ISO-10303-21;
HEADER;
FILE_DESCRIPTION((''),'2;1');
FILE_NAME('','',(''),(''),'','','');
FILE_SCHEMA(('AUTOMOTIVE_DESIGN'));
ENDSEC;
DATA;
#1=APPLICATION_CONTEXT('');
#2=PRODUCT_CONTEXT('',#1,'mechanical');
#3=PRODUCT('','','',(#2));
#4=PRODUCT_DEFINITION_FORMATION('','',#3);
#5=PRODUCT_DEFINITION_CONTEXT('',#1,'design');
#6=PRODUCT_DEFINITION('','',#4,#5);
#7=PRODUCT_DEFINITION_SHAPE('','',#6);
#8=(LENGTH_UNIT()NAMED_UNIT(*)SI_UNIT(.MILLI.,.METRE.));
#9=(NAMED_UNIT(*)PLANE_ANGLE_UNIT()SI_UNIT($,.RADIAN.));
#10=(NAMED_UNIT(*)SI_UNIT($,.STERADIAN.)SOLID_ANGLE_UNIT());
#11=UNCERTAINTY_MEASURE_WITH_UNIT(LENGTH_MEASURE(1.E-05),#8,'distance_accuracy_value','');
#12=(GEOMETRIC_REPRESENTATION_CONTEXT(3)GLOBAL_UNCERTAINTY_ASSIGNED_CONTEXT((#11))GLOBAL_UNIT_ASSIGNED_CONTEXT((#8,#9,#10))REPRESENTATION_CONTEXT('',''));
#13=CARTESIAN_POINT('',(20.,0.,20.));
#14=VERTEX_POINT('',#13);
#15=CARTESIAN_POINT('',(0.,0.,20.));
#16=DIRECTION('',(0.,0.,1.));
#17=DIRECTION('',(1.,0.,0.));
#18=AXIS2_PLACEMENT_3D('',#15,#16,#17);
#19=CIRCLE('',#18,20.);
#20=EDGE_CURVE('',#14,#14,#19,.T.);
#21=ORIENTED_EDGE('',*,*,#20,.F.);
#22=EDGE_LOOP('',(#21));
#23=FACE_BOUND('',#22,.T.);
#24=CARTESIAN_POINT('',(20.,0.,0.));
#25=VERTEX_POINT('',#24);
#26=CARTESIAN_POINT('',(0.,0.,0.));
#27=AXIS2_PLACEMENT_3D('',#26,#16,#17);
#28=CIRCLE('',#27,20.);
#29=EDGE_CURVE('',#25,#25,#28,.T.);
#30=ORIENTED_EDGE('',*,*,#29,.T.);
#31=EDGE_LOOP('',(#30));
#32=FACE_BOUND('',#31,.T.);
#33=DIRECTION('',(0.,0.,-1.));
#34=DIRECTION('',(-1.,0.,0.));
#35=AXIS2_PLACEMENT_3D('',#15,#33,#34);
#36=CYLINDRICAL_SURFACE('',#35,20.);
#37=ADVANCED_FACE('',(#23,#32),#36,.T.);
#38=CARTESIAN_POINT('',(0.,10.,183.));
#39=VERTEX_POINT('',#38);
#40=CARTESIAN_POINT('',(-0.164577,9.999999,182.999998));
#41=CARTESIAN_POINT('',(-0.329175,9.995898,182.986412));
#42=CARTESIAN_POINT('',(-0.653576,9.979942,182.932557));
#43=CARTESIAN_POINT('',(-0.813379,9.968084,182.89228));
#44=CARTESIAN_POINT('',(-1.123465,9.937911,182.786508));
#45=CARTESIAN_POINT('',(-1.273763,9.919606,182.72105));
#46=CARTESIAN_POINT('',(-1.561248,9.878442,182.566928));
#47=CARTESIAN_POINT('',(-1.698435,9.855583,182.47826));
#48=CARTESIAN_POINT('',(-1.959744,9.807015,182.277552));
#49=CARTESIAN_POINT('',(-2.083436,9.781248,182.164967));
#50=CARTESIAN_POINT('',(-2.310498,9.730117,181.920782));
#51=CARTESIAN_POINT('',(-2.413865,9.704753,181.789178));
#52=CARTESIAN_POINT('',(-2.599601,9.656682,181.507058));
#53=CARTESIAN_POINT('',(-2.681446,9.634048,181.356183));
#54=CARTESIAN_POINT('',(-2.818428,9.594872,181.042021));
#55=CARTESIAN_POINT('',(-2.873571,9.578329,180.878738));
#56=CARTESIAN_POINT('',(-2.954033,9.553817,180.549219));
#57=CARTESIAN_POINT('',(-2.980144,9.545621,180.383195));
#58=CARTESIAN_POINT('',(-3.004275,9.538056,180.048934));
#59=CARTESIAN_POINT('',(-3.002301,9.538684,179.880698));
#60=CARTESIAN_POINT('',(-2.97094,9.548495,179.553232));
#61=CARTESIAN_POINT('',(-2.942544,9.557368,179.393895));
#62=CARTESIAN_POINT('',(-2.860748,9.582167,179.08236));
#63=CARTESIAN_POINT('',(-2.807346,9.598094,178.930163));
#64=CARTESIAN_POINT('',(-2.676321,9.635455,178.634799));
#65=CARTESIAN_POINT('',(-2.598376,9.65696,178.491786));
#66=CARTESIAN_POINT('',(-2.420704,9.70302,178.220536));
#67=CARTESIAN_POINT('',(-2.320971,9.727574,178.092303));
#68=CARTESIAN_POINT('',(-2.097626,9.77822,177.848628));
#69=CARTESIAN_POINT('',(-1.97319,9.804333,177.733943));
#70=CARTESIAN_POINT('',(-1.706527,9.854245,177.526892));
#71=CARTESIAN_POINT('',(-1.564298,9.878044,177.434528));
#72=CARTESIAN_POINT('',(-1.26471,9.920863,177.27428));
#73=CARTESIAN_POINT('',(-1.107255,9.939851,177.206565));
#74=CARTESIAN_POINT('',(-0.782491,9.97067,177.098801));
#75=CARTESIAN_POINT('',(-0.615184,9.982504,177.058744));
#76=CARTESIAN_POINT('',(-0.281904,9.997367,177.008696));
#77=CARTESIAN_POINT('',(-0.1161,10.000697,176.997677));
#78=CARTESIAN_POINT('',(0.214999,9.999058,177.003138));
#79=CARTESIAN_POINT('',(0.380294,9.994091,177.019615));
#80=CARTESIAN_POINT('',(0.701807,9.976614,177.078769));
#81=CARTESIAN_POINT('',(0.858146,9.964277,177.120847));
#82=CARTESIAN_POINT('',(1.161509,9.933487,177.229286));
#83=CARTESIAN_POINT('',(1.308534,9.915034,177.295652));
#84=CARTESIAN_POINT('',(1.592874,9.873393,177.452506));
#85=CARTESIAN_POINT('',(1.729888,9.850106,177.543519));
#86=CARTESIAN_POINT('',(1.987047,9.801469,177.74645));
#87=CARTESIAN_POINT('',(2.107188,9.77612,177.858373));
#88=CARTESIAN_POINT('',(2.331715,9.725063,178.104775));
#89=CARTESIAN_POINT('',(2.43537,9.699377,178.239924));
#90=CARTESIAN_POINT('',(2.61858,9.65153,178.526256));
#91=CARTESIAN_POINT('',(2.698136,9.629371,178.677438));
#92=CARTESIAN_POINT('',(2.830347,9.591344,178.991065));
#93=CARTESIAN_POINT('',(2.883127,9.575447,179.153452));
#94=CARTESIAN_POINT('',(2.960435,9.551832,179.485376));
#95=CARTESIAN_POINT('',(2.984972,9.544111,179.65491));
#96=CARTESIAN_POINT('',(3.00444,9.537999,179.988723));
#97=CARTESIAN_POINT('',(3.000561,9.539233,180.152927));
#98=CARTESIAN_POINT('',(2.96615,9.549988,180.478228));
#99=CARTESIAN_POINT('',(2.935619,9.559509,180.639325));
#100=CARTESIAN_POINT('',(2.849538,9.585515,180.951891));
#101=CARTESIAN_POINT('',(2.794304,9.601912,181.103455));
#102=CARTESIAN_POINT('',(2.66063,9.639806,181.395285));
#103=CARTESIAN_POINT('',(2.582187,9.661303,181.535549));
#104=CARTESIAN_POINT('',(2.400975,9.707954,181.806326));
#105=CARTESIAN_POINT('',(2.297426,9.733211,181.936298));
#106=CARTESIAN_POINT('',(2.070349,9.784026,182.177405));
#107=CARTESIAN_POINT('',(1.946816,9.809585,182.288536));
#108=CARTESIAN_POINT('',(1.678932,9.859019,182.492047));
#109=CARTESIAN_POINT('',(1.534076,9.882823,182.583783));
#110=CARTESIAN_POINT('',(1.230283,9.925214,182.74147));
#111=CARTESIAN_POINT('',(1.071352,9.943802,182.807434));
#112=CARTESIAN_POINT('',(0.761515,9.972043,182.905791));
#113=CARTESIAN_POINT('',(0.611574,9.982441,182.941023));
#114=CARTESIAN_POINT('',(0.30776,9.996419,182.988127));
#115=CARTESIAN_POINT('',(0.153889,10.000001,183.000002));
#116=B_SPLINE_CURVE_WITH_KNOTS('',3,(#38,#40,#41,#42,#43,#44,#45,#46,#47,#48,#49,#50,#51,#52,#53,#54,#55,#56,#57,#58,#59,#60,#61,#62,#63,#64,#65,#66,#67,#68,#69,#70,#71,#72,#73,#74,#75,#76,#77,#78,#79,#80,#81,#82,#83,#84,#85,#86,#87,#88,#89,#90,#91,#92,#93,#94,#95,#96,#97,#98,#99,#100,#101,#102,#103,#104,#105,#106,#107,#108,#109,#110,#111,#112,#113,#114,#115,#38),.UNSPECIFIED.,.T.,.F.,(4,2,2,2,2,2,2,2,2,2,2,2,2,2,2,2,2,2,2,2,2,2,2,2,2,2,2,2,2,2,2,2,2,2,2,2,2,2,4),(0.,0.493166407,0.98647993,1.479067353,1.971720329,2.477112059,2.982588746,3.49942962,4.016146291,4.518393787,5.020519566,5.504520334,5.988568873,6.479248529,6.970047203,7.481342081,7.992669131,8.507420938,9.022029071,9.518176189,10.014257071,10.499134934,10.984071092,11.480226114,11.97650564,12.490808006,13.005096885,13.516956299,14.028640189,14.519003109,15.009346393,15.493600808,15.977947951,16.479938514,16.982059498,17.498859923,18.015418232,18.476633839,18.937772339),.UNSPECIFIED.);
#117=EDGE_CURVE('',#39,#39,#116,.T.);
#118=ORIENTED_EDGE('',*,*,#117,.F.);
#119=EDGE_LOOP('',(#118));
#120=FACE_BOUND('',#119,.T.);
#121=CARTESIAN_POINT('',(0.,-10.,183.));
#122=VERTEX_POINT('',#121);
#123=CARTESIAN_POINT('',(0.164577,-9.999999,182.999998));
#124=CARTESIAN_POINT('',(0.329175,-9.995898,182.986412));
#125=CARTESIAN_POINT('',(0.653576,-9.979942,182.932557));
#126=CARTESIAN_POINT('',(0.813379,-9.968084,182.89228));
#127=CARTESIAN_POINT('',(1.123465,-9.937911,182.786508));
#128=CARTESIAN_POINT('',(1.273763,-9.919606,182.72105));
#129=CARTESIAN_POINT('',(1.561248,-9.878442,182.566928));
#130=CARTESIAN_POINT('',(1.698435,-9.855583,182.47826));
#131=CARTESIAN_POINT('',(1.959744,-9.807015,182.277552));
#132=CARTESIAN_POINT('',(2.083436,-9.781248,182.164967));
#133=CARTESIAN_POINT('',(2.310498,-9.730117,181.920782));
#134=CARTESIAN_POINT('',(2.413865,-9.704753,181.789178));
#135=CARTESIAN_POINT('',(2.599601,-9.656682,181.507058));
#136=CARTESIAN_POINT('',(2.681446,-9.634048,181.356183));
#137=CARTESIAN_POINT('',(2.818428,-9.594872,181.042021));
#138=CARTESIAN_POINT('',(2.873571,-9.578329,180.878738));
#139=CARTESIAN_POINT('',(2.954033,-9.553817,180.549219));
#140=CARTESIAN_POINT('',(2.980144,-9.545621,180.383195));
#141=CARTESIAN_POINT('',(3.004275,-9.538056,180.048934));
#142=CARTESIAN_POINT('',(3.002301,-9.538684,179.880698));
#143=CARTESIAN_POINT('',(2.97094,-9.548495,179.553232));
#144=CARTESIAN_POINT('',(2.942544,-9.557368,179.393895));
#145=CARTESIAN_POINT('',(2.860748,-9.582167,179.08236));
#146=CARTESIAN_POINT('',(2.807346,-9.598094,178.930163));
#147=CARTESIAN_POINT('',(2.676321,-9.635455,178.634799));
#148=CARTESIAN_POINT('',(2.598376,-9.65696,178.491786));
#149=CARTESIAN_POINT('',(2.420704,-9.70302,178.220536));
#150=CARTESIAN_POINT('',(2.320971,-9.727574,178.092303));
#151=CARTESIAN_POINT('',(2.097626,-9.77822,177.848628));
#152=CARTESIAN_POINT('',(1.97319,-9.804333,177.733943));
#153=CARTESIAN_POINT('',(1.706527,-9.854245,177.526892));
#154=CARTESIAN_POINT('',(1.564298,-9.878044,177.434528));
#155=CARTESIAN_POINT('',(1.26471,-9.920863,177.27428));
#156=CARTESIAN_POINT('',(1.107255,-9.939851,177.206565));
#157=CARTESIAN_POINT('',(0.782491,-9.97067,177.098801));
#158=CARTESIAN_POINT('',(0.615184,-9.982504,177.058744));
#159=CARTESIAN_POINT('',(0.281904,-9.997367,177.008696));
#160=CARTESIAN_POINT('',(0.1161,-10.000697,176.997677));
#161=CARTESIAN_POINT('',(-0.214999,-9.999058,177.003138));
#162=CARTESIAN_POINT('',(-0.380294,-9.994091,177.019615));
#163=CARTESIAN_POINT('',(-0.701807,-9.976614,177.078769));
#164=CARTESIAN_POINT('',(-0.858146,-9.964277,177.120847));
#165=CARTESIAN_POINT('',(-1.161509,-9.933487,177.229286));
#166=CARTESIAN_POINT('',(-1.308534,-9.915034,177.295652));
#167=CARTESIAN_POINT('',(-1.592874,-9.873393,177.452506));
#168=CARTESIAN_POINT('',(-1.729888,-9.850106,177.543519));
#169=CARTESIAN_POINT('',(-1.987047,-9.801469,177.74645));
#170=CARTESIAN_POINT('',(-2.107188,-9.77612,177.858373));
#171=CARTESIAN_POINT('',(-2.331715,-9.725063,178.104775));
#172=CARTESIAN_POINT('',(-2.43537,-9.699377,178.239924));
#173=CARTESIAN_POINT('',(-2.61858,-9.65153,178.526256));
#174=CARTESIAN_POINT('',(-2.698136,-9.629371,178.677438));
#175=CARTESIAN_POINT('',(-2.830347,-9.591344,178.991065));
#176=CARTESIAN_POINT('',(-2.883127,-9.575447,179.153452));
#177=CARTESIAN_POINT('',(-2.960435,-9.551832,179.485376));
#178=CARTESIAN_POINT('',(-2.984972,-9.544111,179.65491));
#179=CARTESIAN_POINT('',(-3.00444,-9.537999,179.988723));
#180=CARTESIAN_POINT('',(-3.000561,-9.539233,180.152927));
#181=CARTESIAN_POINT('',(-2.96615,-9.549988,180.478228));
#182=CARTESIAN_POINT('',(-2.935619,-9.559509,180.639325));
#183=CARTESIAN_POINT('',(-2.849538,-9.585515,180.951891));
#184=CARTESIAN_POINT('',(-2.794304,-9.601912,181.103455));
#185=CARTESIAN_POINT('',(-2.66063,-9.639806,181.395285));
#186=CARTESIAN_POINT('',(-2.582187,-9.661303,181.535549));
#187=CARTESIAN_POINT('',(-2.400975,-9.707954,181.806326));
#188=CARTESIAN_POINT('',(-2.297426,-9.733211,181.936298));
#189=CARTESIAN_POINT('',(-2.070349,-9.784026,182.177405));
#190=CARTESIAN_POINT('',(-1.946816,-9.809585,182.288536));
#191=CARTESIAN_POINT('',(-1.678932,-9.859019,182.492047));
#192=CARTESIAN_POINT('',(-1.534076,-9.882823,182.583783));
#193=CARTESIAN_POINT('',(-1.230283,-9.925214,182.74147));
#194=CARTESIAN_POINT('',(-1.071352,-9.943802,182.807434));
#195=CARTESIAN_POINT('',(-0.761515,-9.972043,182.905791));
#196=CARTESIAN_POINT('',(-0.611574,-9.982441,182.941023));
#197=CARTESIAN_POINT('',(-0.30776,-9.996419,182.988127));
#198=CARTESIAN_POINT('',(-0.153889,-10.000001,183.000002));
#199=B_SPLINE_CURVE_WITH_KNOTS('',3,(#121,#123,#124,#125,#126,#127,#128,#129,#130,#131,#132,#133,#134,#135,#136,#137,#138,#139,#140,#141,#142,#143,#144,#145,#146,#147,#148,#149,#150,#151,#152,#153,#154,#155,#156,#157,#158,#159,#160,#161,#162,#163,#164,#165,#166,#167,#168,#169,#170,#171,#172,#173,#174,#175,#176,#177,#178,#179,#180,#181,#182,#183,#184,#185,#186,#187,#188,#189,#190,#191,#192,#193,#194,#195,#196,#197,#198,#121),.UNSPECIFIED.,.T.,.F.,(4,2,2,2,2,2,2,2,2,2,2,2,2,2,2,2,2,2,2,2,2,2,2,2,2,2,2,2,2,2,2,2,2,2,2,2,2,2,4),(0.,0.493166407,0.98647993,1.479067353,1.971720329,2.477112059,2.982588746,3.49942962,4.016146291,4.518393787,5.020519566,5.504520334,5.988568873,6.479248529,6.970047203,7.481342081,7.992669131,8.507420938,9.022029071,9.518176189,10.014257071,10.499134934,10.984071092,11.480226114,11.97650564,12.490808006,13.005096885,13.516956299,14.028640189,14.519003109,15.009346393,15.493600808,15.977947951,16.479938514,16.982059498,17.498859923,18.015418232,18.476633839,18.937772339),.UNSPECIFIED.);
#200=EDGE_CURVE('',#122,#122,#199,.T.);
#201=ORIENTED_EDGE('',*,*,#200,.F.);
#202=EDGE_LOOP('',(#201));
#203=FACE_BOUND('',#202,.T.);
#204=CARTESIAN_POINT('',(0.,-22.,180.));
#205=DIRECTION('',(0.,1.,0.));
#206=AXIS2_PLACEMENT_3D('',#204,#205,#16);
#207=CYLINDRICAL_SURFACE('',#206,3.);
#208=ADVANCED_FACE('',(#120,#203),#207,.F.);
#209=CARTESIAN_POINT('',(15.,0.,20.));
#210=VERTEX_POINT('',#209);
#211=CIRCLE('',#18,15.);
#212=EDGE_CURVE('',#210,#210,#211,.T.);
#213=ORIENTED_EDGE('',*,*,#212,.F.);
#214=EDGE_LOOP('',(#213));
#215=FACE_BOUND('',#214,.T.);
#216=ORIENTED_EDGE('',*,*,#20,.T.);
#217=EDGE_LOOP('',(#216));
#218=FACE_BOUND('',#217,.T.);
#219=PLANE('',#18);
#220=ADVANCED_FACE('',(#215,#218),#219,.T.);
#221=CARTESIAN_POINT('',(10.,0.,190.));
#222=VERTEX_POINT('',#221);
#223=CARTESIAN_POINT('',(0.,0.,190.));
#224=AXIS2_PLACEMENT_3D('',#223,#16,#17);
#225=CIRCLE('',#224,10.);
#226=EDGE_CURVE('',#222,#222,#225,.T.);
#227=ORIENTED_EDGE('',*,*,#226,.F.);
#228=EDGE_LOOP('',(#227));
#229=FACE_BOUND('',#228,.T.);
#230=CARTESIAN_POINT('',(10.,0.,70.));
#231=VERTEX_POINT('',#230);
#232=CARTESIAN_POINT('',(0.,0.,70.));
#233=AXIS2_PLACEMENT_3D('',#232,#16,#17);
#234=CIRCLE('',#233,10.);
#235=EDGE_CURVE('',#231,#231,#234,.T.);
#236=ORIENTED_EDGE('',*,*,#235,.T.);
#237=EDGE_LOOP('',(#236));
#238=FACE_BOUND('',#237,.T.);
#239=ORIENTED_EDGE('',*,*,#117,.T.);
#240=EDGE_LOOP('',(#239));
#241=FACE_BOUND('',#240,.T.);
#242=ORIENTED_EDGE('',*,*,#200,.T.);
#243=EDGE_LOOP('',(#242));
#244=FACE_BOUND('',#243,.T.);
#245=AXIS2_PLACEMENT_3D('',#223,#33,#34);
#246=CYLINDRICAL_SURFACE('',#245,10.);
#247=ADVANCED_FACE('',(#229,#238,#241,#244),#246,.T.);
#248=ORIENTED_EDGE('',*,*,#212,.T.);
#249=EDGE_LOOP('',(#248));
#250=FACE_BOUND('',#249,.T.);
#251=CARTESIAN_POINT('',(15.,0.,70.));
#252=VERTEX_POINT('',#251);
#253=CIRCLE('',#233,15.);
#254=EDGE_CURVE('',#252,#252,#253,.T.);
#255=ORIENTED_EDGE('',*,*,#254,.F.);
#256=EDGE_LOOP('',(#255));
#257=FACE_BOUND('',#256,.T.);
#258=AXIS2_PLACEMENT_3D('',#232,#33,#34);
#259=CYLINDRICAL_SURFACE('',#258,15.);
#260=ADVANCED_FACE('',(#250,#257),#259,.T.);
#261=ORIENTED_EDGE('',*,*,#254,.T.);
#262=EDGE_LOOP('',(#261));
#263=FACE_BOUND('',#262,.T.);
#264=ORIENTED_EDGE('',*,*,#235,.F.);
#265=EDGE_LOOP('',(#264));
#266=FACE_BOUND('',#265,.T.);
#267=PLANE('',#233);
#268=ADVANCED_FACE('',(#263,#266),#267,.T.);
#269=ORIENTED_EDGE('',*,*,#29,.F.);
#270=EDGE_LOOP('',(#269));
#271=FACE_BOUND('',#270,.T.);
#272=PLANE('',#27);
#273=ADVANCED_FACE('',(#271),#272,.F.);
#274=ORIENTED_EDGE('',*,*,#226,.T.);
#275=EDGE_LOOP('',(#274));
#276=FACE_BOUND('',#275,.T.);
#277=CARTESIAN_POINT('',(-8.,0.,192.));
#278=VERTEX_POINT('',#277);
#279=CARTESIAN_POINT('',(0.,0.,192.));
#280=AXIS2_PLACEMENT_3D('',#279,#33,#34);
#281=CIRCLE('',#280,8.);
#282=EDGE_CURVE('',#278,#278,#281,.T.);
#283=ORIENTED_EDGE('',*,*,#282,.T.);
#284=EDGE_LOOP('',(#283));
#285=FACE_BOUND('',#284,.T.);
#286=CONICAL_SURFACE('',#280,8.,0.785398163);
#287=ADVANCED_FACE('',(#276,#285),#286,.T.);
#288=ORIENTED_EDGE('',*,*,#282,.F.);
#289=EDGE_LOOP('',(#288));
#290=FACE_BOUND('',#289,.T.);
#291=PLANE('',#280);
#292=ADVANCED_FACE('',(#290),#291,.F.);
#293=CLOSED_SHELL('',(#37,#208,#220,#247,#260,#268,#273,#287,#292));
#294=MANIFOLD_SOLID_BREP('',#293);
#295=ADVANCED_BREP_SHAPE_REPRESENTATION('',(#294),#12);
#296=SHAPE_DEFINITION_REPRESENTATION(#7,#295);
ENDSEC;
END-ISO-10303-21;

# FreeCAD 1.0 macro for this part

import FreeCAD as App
import Part
import Sketcher

V = App.Vector

doc = App.newDocument("Part")
body = doc.addObject("PartDesign::Body", "Body")

# Sketch on XY plane
sketch1 = body.newObject("Sketcher::SketchObject", "Sketch")
sketch1.AttachmentSupport = (doc.getObject("XY_Plane"), [""])
sketch1.MapMode = "FlatFace"
sketch1.addGeometry(Part.Circle(V(0, 0, 0), V(0, 0, 1), 20), False)
sketch1.addConstraint(Sketcher.Constraint("Coincident", 0, 3, -1, 1))
sketch1.addConstraint(Sketcher.Constraint("Diameter", 0, 40.0))
pad1 = body.newObject("PartDesign::Pad", "Pad")
pad1.Profile = sketch1
pad1.Length = 20

# Sketch on XY plane
sketch2 = body.newObject("Sketcher::SketchObject", "Sketch001")
sketch2.AttachmentSupport = (doc.getObject("XY_Plane"), [""])
sketch2.MapMode = "FlatFace"
sketch2.AttachmentOffset = App.Placement(V(0, 0, 20), App.Rotation())
sketch2.addGeometry(Part.Circle(V(0, 0, 0), V(0, 0, 1), 15), False)
sketch2.addConstraint(Sketcher.Constraint("Coincident", 0, 3, -1, 1))
sketch2.addConstraint(Sketcher.Constraint("Diameter", 0, 30.0))
pad2 = body.newObject("PartDesign::Pad", "Pad001")
pad2.Profile = sketch2
pad2.Length = 50

# Sketch on XY plane
sketch3 = body.newObject("Sketcher::SketchObject", "Sketch002")
sketch3.AttachmentSupport = (doc.getObject("XY_Plane"), [""])
sketch3.MapMode = "FlatFace"
sketch3.AttachmentOffset = App.Placement(V(0, 0, 70), App.Rotation())
sketch3.addGeometry(Part.Circle(V(0, 0, 0), V(0, 0, 1), 10), False)
sketch3.addConstraint(Sketcher.Constraint("Coincident", 0, 3, -1, 1))
sketch3.addConstraint(Sketcher.Constraint("Diameter", 0, 20.0))
pad3 = body.newObject("PartDesign::Pad", "Pad002")
pad3.Profile = sketch3
pad3.Length = 120

# Sketch on YZ plane
sketch4 = body.newObject("Sketcher::SketchObject", "Sketch003")
sketch4.AttachmentSupport = (doc.getObject("YZ_Plane"), [""])
sketch4.MapMode = "FlatFace"
sketch4.addGeometry(Part.LineSegment(V(0, 190, 0), V(0, 192, 0)), False)
sketch4.addGeometry(Part.LineSegment(V(0, 192, 0), V(-8, 192, 0)), False)
sketch4.addGeometry(Part.LineSegment(V(-8, 192, 0), V(-10, 190, 0)), False)
sketch4.addGeometry(Part.LineSegment(V(-10, 190, 0), V(0, 190, 0)), False)
sketch4.addConstraint(Sketcher.Constraint("Coincident", 0, 2, 1, 1))
sketch4.addConstraint(Sketcher.Constraint("Coincident", 1, 2, 2, 1))
sketch4.addConstraint(Sketcher.Constraint("Coincident", 2, 2, 3, 1))
sketch4.addConstraint(Sketcher.Constraint("Coincident", 3, 2, 0, 1))
sketch4.addConstraint(Sketcher.Constraint("Vertical", 0))
sketch4.addConstraint(Sketcher.Constraint("Horizontal", 1))
sketch4.addConstraint(Sketcher.Constraint("Horizontal", 3))
sketch4.addConstraint(Sketcher.Constraint("PointOnObject", 0, 2, -2))
sketch4.addConstraint(Sketcher.Constraint("DistanceX", 1, 2, 1, 1, 8.0))
sketch4.addConstraint(Sketcher.Constraint("DistanceX", 3, 1, 3, 2, 10.0))
sketch4.addConstraint(Sketcher.Constraint("DistanceY", 0, 1, 0, 2, 2.0))
sketch4.addConstraint(Sketcher.Constraint("DistanceY", -1, 1, 0, 2, 192.0))
revolution = body.newObject("PartDesign::Revolution", "Revolution")
revolution.Profile = sketch4
revolution.ReferenceAxis = (sketch4, ["V_Axis"])
revolution.Angle = 360

# Sketch on XZ plane
sketch5 = body.newObject("Sketcher::SketchObject", "Sketch004")
sketch5.AttachmentSupport = (doc.getObject("XZ_Plane"), [""])
sketch5.MapMode = "FlatFace"
sketch5.addGeometry(Part.Circle(V(0, 180, 0), V(0, 0, 1), 3), False)
sketch5.addConstraint(Sketcher.Constraint("PointOnObject", 0, 3, -2))
sketch5.addConstraint(Sketcher.Constraint("Diameter", 0, 6.0))
sketch5.addConstraint(Sketcher.Constraint("DistanceY", -1, 1, 0, 3, 180.0))
pocket1 = body.newObject("PartDesign::Pocket", "Pocket")
pocket1.Profile = sketch5
pocket1.Length = 44
pocket1.Midplane = True

doc.recompute()
